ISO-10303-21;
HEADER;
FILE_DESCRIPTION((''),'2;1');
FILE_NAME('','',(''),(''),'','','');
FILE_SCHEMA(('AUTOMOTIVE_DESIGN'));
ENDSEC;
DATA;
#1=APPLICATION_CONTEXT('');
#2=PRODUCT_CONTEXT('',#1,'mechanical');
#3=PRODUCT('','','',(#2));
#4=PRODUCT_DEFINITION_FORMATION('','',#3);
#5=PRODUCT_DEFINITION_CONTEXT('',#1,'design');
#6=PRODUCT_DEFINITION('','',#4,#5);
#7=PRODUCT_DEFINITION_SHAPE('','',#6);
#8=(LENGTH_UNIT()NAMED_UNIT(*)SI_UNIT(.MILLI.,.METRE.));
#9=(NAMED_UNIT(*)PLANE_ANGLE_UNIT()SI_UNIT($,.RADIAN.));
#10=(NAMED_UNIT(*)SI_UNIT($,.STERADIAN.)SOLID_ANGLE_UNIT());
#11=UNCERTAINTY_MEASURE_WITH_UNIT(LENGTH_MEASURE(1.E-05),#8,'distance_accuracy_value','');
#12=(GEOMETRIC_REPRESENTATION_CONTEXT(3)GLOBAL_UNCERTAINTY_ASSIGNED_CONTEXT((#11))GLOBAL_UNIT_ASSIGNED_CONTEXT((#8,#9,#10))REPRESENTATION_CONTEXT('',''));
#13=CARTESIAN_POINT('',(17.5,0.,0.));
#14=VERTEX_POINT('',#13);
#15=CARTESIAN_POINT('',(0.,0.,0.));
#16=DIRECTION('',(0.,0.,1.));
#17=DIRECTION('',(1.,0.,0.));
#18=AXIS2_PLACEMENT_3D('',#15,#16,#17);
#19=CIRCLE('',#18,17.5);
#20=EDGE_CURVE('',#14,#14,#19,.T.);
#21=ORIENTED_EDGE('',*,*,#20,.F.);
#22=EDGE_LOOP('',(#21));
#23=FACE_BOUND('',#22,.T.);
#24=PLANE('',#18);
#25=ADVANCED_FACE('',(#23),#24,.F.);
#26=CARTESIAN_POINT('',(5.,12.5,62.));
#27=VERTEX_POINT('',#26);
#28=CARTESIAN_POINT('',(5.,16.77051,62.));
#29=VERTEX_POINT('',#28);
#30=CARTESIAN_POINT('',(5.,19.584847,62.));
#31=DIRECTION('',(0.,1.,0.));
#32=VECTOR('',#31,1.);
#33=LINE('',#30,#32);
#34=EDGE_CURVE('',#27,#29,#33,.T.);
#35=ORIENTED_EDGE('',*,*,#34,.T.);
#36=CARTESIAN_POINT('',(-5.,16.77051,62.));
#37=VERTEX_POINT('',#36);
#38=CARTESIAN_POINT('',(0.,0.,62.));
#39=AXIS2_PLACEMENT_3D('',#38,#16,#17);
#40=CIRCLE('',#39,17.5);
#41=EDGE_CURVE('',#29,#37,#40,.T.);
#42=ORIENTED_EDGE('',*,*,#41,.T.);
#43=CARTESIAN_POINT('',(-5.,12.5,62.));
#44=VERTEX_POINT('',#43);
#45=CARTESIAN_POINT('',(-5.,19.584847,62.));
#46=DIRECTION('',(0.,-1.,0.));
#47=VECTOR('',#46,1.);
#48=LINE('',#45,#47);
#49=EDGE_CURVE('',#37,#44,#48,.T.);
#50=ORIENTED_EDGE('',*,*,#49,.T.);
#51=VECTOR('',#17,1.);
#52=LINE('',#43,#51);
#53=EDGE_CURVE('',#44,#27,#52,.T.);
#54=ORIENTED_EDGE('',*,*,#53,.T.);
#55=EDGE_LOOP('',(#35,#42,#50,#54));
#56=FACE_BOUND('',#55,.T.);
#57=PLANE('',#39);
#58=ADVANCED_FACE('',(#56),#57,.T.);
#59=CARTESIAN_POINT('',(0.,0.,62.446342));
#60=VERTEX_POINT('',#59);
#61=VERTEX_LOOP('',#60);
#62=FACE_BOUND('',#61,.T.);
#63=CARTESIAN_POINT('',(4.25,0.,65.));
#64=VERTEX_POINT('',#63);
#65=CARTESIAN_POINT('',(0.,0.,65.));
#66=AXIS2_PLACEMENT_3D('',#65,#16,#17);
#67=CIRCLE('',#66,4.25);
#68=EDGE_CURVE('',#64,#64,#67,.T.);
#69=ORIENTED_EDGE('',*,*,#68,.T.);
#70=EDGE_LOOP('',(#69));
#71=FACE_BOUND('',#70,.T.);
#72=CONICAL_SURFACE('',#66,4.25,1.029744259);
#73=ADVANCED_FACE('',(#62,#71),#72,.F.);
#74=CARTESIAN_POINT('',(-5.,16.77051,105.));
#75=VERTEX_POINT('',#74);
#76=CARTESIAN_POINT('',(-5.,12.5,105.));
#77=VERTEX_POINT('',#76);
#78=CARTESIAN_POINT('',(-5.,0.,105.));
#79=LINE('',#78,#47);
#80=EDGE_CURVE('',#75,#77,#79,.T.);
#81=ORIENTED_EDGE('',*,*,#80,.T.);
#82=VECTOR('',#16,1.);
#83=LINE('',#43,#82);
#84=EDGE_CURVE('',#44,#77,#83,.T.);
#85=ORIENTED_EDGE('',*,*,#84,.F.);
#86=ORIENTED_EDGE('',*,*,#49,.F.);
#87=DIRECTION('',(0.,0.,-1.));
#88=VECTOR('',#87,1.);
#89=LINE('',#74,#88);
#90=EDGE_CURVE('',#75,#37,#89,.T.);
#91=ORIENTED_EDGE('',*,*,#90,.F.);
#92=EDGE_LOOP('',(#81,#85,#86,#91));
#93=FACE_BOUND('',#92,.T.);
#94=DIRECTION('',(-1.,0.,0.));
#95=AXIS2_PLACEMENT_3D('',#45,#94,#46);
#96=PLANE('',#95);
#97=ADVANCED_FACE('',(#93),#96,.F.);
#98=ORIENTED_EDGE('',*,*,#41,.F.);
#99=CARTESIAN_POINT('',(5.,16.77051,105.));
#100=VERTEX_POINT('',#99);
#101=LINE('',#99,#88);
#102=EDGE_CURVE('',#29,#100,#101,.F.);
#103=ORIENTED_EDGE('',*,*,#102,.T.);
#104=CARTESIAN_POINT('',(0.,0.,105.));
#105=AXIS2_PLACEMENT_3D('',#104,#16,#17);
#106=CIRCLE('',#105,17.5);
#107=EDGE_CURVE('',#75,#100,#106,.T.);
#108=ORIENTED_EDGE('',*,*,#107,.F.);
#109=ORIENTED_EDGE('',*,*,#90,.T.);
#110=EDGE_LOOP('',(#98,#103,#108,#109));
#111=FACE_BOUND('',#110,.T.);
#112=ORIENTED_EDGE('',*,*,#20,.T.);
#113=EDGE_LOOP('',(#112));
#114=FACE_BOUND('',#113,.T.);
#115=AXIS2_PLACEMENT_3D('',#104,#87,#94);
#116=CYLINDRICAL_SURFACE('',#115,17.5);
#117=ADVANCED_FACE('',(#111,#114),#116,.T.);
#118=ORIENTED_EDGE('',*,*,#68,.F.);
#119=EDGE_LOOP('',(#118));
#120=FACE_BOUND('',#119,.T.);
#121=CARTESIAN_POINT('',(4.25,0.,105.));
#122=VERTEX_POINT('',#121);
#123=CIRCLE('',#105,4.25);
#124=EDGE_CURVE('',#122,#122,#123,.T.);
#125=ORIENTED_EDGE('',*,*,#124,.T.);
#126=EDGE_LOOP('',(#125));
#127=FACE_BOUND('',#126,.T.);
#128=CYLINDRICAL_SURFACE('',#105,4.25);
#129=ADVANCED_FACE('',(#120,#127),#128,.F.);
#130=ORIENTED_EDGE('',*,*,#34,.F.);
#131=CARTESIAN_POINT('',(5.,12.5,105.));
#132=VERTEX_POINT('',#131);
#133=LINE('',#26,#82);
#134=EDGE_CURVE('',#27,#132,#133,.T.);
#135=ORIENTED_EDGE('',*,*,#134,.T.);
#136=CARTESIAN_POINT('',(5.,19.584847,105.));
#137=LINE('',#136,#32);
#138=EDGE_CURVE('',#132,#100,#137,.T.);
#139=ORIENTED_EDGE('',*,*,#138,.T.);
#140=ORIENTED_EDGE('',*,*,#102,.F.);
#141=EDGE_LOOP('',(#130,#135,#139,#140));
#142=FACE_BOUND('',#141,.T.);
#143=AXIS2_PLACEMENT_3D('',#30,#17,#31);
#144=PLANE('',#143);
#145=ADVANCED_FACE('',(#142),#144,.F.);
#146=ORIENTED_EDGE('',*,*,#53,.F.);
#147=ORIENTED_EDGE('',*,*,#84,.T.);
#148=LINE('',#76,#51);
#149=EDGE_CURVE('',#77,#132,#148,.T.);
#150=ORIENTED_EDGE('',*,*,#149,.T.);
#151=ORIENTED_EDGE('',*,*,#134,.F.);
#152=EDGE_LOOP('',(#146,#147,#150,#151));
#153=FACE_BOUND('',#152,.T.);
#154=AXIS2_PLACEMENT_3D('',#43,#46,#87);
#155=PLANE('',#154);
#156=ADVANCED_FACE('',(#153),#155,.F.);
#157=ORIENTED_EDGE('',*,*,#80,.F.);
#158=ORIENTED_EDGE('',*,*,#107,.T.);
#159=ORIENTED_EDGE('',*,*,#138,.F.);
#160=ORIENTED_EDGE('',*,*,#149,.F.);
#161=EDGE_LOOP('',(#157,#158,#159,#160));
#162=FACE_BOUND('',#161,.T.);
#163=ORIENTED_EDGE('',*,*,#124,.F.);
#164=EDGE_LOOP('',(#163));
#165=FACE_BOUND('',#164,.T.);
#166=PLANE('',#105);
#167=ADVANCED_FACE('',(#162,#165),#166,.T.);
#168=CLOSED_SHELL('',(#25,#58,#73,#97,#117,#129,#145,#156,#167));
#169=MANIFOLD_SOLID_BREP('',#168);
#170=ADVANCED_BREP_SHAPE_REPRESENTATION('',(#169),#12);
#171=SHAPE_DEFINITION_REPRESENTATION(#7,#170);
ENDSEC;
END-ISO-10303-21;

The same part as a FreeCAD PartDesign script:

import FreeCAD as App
import Part
import Sketcher

V = App.Vector
Q = App.Units.Quantity

doc = App.newDocument("Part")
body = doc.addObject("PartDesign::Body", "Body")

# Sketch on XY plane
sketch1 = body.newObject("Sketcher::SketchObject", "Sketch")
sketch1.AttachmentSupport = (doc.getObject("XY_Plane"), [""])
sketch1.MapMode = "FlatFace"
sketch1.addGeometry(Part.Circle(V(0, 0, 0), V(0, 0, 1), 18), False)
sketch1.addConstraint(Sketcher.Constraint("Coincident", 0, 3, -1, 1))
sketch1.addConstraint(Sketcher.Constraint("Diameter", 0, Q("35 mm")))
pad1 = body.newObject("PartDesign::Pad", "Pad")
pad1.Profile = sketch1
pad1.Length = 105

# Sketch on XY plane
sketch2 = body.newObject("Sketcher::SketchObject", "Sketch001")
sketch2.AttachmentSupport = (doc.getObject("XY_Plane"), [""])
sketch2.MapMode = "FlatFace"
sketch2.AttachmentOffset = App.Placement(V(0, 0, 105), App.Rotation())
sketch2.addGeometry(Part.LineSegment(V(-5, 20, 0), V(-5, 12, 0)), False)
sketch2.addGeometry(Part.LineSegment(V(-5, 12, 0), V(5, 12, 0)), False)
sketch2.addGeometry(Part.LineSegment(V(5, 12, 0), V(5, 20, 0)), False)
sketch2.addGeometry(Part.LineSegment(V(5, 20, 0), V(-5, 20, 0)), False)
sketch2.addConstraint(Sketcher.Constraint("Coincident", 0, 2, 1, 1))
sketch2.addConstraint(Sketcher.Constraint("Coincident", 1, 2, 2, 1))
sketch2.addConstraint(Sketcher.Constraint("Coincident", 2, 2, 3, 1))
sketch2.addConstraint(Sketcher.Constraint("Coincident", 3, 2, 0, 1))
sketch2.addConstraint(Sketcher.Constraint("Vertical", 0))
sketch2.addConstraint(Sketcher.Constraint("Horizontal", 1))
sketch2.addConstraint(Sketcher.Constraint("Vertical", 2))
sketch2.addConstraint(Sketcher.Constraint("Horizontal", 3))
sketch2.addConstraint(Sketcher.Constraint("DistanceX", 1, 1, 1, 2, Q("10 mm")))
sketch2.addConstraint(Sketcher.Constraint("DistanceX", 0, 2, -1, 1, Q("5 mm")))
sketch2.addConstraint(Sketcher.Constraint("DistanceY", -1, 1, 0, 2, Q("12.5 mm")))
sketch2.addConstraint(Sketcher.Constraint("DistanceY", 0, 2, 0, 1, Q("7.084847 mm")))
pocket1 = body.newObject("PartDesign::Pocket", "Pocket")
pocket1.Profile = sketch2
pocket1.Length = 43

# Sketch on XY plane
sketch3 = body.newObject("Sketcher::SketchObject", "Sketch002")
sketch3.AttachmentSupport = (doc.getObject("XY_Plane"), [""])
sketch3.MapMode = "FlatFace"
sketch3.AttachmentOffset = App.Placement(V(0, 0, 105), App.Rotation())
sketch3.addGeometry(Part.Circle(V(0, 0, 0), V(0, 0, 1), 4.2), False)
sketch3.addConstraint(Sketcher.Constraint("Coincident", 0, 3, -1, 1))
sketch3.addConstraint(Sketcher.Constraint("Diameter", 0, Q("8.5 mm")))
doc.recompute()
hole = body.newObject("PartDesign::Hole", "Hole")
hole.Profile = sketch3
hole.ThreadType = "None"
hole.Diameter = 8.5
hole.DepthType = "Dimension"
hole.Depth = 40
hole.DrillPoint = "Angled"
hole.DrillPointAngle = 118

doc.recompute()
